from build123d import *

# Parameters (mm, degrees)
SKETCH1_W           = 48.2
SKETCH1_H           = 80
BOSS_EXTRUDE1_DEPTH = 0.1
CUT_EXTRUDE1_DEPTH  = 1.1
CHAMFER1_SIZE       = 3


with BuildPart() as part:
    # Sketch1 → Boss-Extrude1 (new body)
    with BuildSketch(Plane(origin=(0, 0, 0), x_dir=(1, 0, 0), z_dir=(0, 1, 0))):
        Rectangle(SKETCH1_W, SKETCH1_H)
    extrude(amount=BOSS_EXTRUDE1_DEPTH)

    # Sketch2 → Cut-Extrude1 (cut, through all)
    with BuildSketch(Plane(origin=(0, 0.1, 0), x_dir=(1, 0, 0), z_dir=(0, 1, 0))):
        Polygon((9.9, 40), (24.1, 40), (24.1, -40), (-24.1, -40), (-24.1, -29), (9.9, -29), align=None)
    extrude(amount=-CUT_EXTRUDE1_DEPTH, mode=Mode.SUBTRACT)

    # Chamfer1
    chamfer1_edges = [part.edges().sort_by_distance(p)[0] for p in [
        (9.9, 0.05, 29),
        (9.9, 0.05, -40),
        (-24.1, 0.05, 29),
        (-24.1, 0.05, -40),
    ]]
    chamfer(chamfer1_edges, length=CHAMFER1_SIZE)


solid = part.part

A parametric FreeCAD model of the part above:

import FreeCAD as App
import Part
import Sketcher
from FreeCAD import Vector


def edges_at(feature, points):
    """Names of the edges that pass closest to the given points."""
    edges = feature.Shape.Edges
    near = lambda p: min(range(len(edges)), key=lambda i: edges[i].distToShape(Part.Vertex(*p))[0])
    return sorted({f"Edge{near(p) + 1}" for p in points})


def add_polygon(sketch, points):
    """Adds a closed chain of lines whose ends are joined by coincident constraints."""
    first, n = sketch.GeometryCount, len(points)
    for a, b in zip(points, points[1:] + points[:1]):
        sketch.addGeometry(Part.LineSegment(App.Vector(*a, 0), App.Vector(*b, 0)), False)
    for i in range(n):
        sketch.addConstraint(Sketcher.Constraint("Coincident", first + i, 2, first + (i + 1) % n, 1))

doc = App.newDocument("Part")
body = doc.addObject("PartDesign::Body", "Body")

# Sketch on XZ plane
sketch1 = body.newObject("Sketcher::SketchObject", "Sketch")
sketch1.AttachmentSupport = (doc.getObject("XZ_Plane"), [""])
sketch1.MapMode = "FlatFace"
add_polygon(sketch1, [(-24, -40), (-24, 40), (24, 40), (24, -40)])  # lines 0-3
sketch1.addConstraint([
    Sketcher.Constraint("Vertical", 0),
    Sketcher.Constraint("Horizontal", 1),
    Sketcher.Constraint("Vertical", 2),
    Sketcher.Constraint("Horizontal", 3),
    Sketcher.Constraint("Symmetric", 0, 2, 2, 2, -1, 1),
    Sketcher.Constraint("DistanceY", 0, 1, 0, 2, 80.0),
    Sketcher.Constraint("DistanceX", 1, 1, 1, 2, 48.2),
])
pad1 = body.newObject("PartDesign::Pad", "Pad")
pad1.Profile = sketch1
pad1.Length = 0.1
pad1.Reversed = True

# Sketch on XZ plane
sketch2 = body.newObject("Sketcher::SketchObject", "Sketch001")
sketch2.AttachmentSupport = (doc.getObject("XZ_Plane"), [""])
sketch2.MapMode = "FlatFace"
sketch2.AttachmentOffset = App.Placement(Vector(0, 0, -0.1), App.Rotation())
add_polygon(sketch2, [(24, -40), (10, -40), (10, 29), (-24, 29), (-24, 40), (24, 40)])  # lines 0-5
sketch2.addConstraint([
    Sketcher.Constraint("Horizontal", 0),
    Sketcher.Constraint("Vertical", 1),
    Sketcher.Constraint("Horizontal", 2),
    Sketcher.Constraint("Vertical", 3),
    Sketcher.Constraint("Horizontal", 4),
    Sketcher.Constraint("Vertical", 5),
    Sketcher.Constraint("Symmetric", 3, 2, 5, 2, -1, 1),
    Sketcher.Constraint("DistanceX", 2, 2, 2, 1, 34.0),
    Sketcher.Constraint("DistanceY", 1, 1, 1, 2, 69.0),
    Sketcher.Constraint("DistanceY", 3, 1, 3, 2, 11.0),
    Sketcher.Constraint("DistanceX", 0, 2, 0, 1, 14.2),
])
pocket1 = body.newObject("PartDesign::Pocket", "Pocket")
pocket1.Profile = sketch2
pocket1.Type = "ThroughAll"
pocket1.Reversed = True
doc.recompute()

chamfer = body.newObject("PartDesign::Chamfer", "Chamfer")
chamfer.Base = (pocket1, edges_at(pocket1, [
    (9.9, 0.05, 29),
    (9.9, 0.05, -40),
    (-24.1, 0.05, 29),
    (-24.1, 0.05, -40),
]))
chamfer.Size = 3

doc.recompute()
